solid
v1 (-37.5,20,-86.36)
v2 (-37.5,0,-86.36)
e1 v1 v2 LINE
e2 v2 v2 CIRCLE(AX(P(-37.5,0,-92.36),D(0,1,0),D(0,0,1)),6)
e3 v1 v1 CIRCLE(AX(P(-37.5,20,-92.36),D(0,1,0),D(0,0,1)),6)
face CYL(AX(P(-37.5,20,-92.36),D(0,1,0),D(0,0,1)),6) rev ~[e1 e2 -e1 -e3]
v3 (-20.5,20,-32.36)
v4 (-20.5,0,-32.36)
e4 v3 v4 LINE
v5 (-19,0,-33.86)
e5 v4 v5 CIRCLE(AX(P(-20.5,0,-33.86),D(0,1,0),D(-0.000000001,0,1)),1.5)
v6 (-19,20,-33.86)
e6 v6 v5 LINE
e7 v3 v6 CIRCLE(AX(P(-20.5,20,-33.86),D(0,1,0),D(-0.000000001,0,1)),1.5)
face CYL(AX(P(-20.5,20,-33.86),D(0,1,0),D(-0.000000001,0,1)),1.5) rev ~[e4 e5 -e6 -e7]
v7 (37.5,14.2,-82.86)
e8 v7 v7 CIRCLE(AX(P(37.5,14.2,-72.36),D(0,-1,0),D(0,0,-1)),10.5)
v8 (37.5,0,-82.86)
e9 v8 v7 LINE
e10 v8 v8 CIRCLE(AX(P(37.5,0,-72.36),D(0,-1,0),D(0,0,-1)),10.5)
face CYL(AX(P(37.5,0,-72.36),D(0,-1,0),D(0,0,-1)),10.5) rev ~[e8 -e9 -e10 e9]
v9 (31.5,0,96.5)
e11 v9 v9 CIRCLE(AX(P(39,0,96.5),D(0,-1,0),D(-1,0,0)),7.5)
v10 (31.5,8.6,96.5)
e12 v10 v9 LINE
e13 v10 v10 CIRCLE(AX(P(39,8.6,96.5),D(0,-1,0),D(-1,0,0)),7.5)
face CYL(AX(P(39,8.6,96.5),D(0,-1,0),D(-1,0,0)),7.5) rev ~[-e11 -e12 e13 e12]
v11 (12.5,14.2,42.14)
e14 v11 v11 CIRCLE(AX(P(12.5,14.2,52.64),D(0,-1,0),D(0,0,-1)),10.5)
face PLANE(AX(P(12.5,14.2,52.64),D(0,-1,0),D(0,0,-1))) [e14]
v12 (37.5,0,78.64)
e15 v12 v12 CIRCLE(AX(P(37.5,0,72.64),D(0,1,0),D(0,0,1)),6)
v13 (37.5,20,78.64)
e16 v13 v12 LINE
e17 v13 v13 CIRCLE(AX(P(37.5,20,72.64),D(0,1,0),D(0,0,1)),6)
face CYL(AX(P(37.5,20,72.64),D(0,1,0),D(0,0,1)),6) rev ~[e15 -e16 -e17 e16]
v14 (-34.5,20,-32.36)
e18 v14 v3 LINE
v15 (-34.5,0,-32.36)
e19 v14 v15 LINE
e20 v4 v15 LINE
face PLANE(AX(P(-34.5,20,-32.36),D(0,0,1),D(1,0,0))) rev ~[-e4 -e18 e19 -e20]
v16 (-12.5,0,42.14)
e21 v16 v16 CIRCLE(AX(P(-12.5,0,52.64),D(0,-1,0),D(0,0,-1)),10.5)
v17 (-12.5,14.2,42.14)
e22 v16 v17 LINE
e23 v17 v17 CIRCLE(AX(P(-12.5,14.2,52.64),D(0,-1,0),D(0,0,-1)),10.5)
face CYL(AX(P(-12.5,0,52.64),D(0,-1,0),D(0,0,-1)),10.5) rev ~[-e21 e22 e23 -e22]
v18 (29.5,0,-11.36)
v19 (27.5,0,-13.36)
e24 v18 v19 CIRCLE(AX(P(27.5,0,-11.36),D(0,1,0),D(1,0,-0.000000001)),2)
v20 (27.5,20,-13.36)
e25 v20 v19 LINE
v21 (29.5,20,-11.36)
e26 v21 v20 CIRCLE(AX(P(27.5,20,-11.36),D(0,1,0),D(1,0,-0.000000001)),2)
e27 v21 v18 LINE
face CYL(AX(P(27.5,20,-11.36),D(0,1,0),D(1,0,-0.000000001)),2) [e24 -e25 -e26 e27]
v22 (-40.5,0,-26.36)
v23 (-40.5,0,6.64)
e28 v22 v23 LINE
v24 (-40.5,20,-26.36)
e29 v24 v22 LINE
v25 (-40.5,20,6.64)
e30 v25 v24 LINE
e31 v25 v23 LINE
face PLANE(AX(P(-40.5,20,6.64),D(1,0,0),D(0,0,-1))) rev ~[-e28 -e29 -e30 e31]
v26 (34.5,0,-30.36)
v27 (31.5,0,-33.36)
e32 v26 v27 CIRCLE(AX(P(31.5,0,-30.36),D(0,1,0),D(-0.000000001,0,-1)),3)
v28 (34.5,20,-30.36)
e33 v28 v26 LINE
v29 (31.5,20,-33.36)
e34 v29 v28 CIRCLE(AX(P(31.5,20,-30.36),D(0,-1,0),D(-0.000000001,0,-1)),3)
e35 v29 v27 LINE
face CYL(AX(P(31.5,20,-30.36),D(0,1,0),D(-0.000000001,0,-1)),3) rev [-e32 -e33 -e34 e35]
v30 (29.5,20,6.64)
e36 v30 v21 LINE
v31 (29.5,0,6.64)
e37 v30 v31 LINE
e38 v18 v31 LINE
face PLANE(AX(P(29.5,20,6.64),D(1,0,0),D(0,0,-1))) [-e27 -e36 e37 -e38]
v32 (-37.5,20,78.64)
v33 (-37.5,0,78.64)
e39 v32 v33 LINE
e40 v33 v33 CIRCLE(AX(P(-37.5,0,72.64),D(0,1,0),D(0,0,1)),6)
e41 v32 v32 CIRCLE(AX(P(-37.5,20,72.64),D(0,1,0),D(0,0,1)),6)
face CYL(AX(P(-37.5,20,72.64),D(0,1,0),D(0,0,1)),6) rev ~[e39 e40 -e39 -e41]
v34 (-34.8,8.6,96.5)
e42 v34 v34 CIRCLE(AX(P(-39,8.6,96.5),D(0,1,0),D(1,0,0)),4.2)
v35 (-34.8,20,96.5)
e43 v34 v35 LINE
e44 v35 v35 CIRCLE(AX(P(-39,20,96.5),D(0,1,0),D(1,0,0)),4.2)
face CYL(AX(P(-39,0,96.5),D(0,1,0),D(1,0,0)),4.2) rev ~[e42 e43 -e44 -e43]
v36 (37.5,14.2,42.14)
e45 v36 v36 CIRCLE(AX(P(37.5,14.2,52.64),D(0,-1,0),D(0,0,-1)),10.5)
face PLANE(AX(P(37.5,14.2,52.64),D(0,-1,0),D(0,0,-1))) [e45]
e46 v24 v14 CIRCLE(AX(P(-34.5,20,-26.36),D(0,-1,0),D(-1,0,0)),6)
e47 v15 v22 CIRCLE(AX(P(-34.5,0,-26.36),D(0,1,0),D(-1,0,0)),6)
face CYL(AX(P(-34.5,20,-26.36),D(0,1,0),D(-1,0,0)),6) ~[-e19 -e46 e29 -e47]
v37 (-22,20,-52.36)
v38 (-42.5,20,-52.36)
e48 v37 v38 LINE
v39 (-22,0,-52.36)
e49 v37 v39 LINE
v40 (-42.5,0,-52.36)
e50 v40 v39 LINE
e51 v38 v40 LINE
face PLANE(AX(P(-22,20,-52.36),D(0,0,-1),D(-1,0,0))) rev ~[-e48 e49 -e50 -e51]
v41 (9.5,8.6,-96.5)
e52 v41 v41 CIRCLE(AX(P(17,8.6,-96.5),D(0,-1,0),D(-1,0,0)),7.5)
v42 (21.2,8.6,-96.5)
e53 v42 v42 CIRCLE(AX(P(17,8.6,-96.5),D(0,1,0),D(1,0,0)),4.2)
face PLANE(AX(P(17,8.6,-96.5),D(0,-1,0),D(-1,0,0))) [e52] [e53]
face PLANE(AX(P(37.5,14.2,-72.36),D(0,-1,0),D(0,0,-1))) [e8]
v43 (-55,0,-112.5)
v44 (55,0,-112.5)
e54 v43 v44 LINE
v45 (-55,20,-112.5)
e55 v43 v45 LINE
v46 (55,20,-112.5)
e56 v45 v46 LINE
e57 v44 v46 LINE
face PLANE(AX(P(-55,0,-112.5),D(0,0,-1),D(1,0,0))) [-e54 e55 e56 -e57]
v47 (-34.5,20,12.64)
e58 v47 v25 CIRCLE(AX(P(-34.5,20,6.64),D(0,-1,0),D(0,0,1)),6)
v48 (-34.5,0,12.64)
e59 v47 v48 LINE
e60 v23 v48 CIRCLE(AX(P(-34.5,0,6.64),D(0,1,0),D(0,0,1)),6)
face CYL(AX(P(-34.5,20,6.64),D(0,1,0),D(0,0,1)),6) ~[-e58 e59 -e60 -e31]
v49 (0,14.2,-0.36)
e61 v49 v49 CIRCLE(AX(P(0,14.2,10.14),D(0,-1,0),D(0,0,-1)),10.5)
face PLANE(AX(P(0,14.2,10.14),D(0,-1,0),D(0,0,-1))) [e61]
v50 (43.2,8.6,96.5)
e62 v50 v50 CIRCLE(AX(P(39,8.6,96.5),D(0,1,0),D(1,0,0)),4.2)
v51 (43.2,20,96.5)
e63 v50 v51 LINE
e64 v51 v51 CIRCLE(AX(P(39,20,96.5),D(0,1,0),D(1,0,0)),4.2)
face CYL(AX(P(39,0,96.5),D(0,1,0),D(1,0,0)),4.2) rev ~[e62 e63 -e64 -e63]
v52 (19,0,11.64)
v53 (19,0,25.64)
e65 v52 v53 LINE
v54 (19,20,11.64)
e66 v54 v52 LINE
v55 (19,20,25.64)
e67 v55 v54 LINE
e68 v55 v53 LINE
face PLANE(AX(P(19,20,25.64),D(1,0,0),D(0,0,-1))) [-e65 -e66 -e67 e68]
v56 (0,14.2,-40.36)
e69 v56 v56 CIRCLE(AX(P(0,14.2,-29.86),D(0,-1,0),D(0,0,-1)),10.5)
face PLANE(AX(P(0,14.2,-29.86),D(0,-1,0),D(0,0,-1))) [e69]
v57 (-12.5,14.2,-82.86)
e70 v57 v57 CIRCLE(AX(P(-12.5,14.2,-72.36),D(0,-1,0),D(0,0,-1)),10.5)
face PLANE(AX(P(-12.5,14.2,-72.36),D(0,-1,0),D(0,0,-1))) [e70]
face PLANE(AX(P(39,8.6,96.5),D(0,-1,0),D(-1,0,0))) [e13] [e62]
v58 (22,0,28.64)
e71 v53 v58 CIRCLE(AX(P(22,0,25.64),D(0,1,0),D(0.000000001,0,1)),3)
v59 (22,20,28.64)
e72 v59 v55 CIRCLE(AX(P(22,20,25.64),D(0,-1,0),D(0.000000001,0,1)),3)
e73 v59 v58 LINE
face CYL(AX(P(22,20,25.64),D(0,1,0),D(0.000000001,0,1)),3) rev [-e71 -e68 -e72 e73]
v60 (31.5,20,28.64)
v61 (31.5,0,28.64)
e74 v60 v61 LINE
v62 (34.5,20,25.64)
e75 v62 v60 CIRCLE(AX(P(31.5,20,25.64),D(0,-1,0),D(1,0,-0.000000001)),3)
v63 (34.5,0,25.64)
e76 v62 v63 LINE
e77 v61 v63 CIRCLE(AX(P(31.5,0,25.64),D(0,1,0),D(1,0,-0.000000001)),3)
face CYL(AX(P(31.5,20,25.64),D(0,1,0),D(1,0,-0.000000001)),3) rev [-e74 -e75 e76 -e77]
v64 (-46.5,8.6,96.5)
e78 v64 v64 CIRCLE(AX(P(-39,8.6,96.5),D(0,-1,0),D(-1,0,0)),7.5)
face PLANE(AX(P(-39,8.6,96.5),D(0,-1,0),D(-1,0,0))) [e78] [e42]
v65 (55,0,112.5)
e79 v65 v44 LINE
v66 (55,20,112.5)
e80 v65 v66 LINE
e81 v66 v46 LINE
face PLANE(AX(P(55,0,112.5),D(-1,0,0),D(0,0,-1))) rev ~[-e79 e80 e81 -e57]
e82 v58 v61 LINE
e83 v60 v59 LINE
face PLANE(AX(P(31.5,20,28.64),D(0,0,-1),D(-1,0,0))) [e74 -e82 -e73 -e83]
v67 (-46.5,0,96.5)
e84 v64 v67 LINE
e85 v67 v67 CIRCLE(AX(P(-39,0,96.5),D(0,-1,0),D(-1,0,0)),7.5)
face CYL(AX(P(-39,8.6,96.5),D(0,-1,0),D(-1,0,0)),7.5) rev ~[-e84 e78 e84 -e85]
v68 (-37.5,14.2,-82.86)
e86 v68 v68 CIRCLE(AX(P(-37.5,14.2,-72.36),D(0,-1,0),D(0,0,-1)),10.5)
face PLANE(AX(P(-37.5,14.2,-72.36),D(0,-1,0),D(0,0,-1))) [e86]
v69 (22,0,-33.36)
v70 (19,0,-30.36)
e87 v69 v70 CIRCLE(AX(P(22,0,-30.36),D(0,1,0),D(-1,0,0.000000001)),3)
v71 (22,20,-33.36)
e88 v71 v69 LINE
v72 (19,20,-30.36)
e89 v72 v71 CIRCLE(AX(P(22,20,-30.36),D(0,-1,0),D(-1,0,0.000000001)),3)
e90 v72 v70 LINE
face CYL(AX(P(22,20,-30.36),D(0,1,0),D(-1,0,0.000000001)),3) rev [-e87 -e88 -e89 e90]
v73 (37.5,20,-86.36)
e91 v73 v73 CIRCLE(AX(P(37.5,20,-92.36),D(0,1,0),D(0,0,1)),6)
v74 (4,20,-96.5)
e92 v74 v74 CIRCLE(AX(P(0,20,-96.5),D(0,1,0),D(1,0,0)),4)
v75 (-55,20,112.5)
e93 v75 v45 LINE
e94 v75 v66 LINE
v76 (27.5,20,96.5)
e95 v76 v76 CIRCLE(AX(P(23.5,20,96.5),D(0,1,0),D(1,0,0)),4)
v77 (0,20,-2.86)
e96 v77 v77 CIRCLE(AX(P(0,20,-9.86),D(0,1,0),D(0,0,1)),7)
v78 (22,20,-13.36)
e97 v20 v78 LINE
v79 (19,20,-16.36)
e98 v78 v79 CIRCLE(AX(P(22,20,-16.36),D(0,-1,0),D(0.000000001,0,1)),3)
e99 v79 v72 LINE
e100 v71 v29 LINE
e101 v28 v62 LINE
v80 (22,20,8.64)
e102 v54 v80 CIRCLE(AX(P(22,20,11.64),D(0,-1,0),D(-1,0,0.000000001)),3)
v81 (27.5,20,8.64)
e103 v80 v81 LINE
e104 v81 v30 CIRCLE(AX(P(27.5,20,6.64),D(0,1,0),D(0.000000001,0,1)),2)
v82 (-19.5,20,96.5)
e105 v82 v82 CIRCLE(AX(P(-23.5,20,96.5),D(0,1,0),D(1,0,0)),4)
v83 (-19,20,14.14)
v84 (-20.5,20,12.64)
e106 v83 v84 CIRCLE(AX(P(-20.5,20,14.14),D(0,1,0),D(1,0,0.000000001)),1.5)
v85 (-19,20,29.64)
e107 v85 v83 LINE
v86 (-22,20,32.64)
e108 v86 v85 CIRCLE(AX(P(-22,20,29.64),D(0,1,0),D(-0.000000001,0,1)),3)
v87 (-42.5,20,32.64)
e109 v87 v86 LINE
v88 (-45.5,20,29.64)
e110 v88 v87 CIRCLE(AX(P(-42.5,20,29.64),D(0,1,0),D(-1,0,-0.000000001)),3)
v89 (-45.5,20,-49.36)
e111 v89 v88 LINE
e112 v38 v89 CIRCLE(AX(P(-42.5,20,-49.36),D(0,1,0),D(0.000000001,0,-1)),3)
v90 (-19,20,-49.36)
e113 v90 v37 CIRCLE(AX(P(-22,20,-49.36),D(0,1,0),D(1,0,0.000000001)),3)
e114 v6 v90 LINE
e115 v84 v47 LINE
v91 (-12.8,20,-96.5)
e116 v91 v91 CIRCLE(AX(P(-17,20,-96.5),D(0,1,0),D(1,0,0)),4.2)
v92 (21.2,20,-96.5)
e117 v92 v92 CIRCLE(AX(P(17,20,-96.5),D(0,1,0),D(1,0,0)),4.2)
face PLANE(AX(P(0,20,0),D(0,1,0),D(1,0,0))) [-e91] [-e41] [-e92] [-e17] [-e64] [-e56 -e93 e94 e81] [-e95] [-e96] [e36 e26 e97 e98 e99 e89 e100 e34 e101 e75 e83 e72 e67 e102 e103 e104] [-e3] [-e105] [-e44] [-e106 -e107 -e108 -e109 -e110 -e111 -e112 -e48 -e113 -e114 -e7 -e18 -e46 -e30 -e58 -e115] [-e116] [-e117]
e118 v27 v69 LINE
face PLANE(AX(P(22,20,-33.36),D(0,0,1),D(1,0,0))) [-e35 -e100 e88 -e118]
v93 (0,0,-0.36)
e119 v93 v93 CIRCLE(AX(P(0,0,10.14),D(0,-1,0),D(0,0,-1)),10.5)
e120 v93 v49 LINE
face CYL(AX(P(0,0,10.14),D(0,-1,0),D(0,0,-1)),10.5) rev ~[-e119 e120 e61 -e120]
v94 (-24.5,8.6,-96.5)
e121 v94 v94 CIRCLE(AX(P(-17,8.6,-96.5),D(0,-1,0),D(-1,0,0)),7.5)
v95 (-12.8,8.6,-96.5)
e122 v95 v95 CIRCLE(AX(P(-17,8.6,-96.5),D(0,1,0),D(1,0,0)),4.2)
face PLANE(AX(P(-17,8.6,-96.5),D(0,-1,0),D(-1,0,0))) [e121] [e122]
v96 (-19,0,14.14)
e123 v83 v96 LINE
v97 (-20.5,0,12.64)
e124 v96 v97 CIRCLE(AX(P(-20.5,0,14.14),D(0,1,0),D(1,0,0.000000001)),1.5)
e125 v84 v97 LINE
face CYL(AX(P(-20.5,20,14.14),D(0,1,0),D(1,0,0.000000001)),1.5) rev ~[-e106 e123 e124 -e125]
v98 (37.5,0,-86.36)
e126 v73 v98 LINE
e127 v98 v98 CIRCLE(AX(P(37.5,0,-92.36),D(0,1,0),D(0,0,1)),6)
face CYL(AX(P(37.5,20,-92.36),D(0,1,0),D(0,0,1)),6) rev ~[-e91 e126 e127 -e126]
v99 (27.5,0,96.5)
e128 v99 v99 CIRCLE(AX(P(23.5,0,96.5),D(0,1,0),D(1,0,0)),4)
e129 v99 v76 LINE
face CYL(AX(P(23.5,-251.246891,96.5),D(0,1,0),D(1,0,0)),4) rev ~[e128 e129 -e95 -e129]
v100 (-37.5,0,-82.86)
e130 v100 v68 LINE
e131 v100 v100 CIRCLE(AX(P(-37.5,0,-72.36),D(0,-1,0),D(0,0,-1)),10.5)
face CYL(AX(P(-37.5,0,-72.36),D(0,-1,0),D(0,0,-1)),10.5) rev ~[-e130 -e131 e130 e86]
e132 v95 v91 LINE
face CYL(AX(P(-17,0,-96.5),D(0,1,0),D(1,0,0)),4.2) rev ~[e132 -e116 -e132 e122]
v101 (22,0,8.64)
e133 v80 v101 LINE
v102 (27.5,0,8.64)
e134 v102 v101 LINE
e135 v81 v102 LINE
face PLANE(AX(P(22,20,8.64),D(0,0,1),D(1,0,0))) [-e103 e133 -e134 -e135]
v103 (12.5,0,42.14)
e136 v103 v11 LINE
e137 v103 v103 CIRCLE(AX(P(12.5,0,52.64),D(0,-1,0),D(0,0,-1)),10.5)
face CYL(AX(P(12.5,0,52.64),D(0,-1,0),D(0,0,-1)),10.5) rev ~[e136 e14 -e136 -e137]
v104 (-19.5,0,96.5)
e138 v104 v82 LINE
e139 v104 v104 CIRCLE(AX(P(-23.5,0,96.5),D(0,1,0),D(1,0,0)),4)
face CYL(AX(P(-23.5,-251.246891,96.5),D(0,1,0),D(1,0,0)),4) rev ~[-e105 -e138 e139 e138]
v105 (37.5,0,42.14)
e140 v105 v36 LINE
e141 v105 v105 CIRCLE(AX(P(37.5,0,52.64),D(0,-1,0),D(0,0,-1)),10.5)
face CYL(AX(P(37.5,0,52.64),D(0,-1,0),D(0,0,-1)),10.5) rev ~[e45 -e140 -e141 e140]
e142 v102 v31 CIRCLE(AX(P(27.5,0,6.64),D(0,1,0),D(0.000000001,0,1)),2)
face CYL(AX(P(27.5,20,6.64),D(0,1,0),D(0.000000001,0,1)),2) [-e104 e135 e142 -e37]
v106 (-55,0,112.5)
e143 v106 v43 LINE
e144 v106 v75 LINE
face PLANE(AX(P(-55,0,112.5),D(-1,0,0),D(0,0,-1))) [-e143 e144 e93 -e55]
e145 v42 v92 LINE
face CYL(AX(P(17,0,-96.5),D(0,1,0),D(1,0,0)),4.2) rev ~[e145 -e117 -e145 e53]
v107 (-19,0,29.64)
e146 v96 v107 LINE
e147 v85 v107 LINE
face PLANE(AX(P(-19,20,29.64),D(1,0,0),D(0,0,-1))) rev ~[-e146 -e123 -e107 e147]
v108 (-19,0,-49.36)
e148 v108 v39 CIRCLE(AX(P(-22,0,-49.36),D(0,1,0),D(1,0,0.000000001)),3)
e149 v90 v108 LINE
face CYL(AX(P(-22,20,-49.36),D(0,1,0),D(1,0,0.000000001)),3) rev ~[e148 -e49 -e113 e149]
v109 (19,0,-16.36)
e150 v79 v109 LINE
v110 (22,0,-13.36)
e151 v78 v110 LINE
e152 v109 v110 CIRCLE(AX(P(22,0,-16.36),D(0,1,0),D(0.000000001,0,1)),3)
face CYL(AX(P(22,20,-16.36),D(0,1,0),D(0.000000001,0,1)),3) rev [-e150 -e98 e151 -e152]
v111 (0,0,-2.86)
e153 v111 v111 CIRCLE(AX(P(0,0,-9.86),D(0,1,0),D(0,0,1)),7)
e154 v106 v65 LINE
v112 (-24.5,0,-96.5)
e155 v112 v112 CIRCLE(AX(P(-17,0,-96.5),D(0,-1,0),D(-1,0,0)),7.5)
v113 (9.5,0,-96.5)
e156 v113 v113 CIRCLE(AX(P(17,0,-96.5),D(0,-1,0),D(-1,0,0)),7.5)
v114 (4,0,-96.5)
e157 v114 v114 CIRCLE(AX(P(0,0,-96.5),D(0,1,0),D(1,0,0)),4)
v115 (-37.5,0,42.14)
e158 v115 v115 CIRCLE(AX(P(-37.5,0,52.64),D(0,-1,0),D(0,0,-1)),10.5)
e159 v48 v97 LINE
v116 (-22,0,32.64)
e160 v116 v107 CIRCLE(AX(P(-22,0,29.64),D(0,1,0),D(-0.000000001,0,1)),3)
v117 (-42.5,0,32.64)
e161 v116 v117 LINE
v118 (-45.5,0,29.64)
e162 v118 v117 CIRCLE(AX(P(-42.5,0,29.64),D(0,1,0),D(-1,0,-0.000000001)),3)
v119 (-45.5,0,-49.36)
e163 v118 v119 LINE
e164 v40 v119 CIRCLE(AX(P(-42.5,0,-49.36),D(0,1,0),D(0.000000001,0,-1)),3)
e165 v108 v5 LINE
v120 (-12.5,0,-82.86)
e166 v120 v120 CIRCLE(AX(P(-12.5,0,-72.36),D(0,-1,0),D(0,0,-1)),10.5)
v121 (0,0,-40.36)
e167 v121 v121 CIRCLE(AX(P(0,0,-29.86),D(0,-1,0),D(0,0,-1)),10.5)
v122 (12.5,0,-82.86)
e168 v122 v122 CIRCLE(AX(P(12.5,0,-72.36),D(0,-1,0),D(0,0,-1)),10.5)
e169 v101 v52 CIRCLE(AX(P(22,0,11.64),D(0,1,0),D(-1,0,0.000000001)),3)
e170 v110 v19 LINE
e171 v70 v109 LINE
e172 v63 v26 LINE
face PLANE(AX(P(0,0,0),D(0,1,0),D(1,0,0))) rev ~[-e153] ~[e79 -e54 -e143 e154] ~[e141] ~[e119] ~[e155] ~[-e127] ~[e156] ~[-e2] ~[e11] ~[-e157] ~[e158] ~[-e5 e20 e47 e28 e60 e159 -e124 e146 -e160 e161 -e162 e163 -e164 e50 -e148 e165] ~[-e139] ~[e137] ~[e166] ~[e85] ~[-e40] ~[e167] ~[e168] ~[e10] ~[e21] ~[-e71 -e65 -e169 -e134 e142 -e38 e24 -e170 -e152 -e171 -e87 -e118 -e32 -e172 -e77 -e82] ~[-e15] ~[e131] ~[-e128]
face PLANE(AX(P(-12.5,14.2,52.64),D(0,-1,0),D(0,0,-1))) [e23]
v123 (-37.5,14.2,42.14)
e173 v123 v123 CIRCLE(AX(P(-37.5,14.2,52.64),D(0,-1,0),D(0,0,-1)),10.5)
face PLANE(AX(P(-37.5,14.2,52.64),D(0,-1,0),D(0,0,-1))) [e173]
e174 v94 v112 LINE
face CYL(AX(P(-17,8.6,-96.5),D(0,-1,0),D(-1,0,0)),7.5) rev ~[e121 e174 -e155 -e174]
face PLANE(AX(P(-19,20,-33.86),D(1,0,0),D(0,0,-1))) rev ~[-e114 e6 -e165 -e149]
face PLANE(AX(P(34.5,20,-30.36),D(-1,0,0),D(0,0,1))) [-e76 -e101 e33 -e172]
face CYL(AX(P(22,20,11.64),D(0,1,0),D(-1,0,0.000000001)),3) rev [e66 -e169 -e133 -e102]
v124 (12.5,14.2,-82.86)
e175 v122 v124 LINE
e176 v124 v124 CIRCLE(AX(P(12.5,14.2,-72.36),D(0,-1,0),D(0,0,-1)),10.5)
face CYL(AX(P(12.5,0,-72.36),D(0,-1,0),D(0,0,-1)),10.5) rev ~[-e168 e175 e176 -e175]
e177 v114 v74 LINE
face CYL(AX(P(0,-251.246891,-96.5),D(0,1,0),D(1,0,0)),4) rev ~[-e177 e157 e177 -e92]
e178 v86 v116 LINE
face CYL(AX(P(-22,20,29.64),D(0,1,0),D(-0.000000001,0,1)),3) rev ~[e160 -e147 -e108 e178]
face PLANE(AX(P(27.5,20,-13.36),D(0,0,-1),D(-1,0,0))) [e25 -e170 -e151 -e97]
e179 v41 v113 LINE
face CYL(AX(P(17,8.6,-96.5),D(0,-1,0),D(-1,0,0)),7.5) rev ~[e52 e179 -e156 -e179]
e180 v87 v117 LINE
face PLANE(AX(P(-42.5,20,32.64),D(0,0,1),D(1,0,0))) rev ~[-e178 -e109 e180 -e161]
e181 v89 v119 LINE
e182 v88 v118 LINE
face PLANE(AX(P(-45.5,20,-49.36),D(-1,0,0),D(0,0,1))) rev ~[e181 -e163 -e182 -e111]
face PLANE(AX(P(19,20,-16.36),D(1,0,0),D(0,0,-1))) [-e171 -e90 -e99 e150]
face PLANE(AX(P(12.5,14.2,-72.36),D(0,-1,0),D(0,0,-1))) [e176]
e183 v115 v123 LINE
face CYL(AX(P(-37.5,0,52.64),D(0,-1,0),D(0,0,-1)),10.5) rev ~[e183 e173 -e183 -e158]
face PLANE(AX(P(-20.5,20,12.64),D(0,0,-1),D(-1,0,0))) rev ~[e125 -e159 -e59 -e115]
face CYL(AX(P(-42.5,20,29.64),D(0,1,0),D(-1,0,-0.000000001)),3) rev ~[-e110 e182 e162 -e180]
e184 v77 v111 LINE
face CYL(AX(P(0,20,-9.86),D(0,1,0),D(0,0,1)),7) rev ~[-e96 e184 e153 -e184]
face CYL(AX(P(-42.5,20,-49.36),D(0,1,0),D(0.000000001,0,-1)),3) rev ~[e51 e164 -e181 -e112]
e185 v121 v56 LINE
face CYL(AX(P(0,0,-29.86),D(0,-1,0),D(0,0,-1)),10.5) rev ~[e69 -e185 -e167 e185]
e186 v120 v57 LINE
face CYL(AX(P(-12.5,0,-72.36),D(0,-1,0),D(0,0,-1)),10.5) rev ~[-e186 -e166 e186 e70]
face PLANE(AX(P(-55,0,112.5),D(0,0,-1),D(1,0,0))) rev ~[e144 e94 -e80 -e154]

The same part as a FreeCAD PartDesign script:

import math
import FreeCAD as App
import Part
import Sketcher
from FreeCAD import Vector


def add_polygon(sketch, points):
    """Adds a closed chain of lines whose ends are joined by coincident constraints."""
    first, n = sketch.GeometryCount, len(points)
    for a, b in zip(points, points[1:] + points[:1]):
        sketch.addGeometry(Part.LineSegment(App.Vector(*a, 0), App.Vector(*b, 0)), False)
    for i in range(n):
        sketch.addConstraint(Sketcher.Constraint("Coincident", first + i, 2, first + (i + 1) % n, 1))

doc = App.newDocument("Part")
body = doc.addObject("PartDesign::Body", "Body")

sketch1 = body.newObject("Sketcher::SketchObject", "Sketch")
sketch1.AttachmentSupport = (doc.getObject("XZ_Plane"), [""])
sketch1.MapMode = "FlatFace"
add_polygon(sketch1, [(-55, -112.5), (-55, 112.5), (55, 112.5), (55, -112.5)])
sketch1.addConstraint(Sketcher.Constraint("Vertical", 0))
sketch1.addConstraint(Sketcher.Constraint("Horizontal", 1))
sketch1.addConstraint(Sketcher.Constraint("Vertical", 2))
sketch1.addConstraint(Sketcher.Constraint("Horizontal", 3))
sketch1.addConstraint(Sketcher.Constraint("Symmetric", 0, 2, 2, 2, -1, 1))
sketch1.addConstraint(Sketcher.Constraint("DistanceX", 1, 1, 1, 2, 110.0))
sketch1.addConstraint(Sketcher.Constraint("DistanceY", 0, 1, 0, 2, 225.0))
pad1 = body.newObject("PartDesign::Pad", "Pad")
pad1.Profile = sketch1
pad1.Length = 20
pad1.Reversed = True

sketch2 = body.newObject("Sketcher::SketchObject", "Sketch001")
sketch2.AttachmentSupport = (doc.getObject("XZ_Plane"), [""])
sketch2.MapMode = "FlatFace"
sketch2.AttachmentOffset = App.Placement(Vector(0, 0, -20), App.Rotation())
sketch2.addGeometry(Part.LineSegment(Vector(-42.5, 32.64, 0), Vector(-22, 32.64, 0)), False)
sketch2.addGeometry(Part.ArcOfCircle(Part.Circle(Vector(-22, 29.64, 0), Vector(0, 0, 1), 3), math.radians(0), math.radians(90)), False)
sketch2.addGeometry(Part.LineSegment(Vector(-19, 29.64, 0), Vector(-19, 14.14, 0)), False)
sketch2.addGeometry(Part.ArcOfCircle(Part.Circle(Vector(-20.5, 14.14, 0), Vector(0, 0, 1), 1.5), math.radians(-90), math.radians(0)), False)
sketch2.addGeometry(Part.LineSegment(Vector(-20.5, 12.64, 0), Vector(-34.5, 12.64, 0)), False)
sketch2.addGeometry(Part.ArcOfCircle(Part.Circle(Vector(-34.5, 6.64, 0), Vector(0, 0, 1), 6), math.radians(90), math.radians(180)), False)
sketch2.addGeometry(Part.LineSegment(Vector(-40.5, 6.64, 0), Vector(-40.5, -26.36, 0)), False)
sketch2.addGeometry(Part.ArcOfCircle(Part.Circle(Vector(-34.5, -26.36, 0), Vector(0, 0, 1), 6), math.radians(180), math.radians(270)), False)
sketch2.addGeometry(Part.LineSegment(Vector(-34.5, -32.36, 0), Vector(-20.5, -32.36, 0)), False)
sketch2.addGeometry(Part.ArcOfCircle(Part.Circle(Vector(-20.5, -33.86, 0), Vector(0, 0, 1), 1.5), math.radians(0), math.radians(90)), False)
sketch2.addGeometry(Part.LineSegment(Vector(-19, -33.86, 0), Vector(-19, -49.36, 0)), False)
sketch2.addGeometry(Part.ArcOfCircle(Part.Circle(Vector(-22, -49.36, 0), Vector(0, 0, 1), 3), math.radians(-90), math.radians(0)), False)
sketch2.addGeometry(Part.LineSegment(Vector(-22, -52.36, 0), Vector(-42.5, -52.36, 0)), False)
sketch2.addGeometry(Part.ArcOfCircle(Part.Circle(Vector(-42.5, -49.36, 0), Vector(0, 0, 1), 3), math.radians(180), math.radians(270)), False)
sketch2.addGeometry(Part.LineSegment(Vector(-45.5, -49.36, 0), Vector(-45.5, 29.64, 0)), False)
sketch2.addGeometry(Part.ArcOfCircle(Part.Circle(Vector(-42.5, 29.64, 0), Vector(0, 0, 1), 3), math.radians(90), math.radians(180)), False)
sketch2.addConstraint(Sketcher.Constraint("Tangent", 0, 2, 1, 2))
sketch2.addConstraint(Sketcher.Constraint("Tangent", 1, 1, 2, 1))
sketch2.addConstraint(Sketcher.Constraint("Tangent", 2, 2, 3, 2))
sketch2.addConstraint(Sketcher.Constraint("Tangent", 3, 1, 4, 1))
sketch2.addConstraint(Sketcher.Constraint("Tangent", 4, 2, 5, 1))
sketch2.addConstraint(Sketcher.Constraint("Tangent", 5, 2, 6, 1))
sketch2.addConstraint(Sketcher.Constraint("Tangent", 6, 2, 7, 1))
sketch2.addConstraint(Sketcher.Constraint("Tangent", 7, 2, 8, 1))
sketch2.addConstraint(Sketcher.Constraint("Tangent", 8, 2, 9, 2))
sketch2.addConstraint(Sketcher.Constraint("Tangent", 9, 1, 10, 1))
sketch2.addConstraint(Sketcher.Constraint("Tangent", 10, 2, 11, 2))
sketch2.addConstraint(Sketcher.Constraint("Tangent", 11, 1, 12, 1))
sketch2.addConstraint(Sketcher.Constraint("Tangent", 12, 2, 13, 2))
sketch2.addConstraint(Sketcher.Constraint("Tangent", 13, 1, 14, 1))
sketch2.addConstraint(Sketcher.Constraint("Tangent", 14, 2, 15, 2))
sketch2.addConstraint(Sketcher.Constraint("Tangent", 15, 1, 0, 1))
sketch2.addConstraint(Sketcher.Constraint("Horizontal", 0))
sketch2.addConstraint(Sketcher.Constraint("Vertical", 2))
sketch2.addConstraint(Sketcher.Constraint("Horizontal", 4))
sketch2.addConstraint(Sketcher.Constraint("Vertical", 6))
sketch2.addConstraint(Sketcher.Constraint("Horizontal", 8))
sketch2.addConstraint(Sketcher.Constraint("Vertical", 10))
sketch2.addConstraint(Sketcher.Constraint("Horizontal", 12))
sketch2.addConstraint(Sketcher.Constraint("Vertical", 14))
sketch2.addConstraint(Sketcher.Constraint("Equal", 5, 7))
sketch2.addConstraint(Sketcher.Constraint("Equal", 3, 9))
sketch2.addConstraint(Sketcher.Constraint("Equal", 1, 11))
sketch2.addConstraint(Sketcher.Constraint("Equal", 11, 13))
sketch2.addConstraint(Sketcher.Constraint("Equal", 13, 15))
sketch2.addConstraint(Sketcher.Constraint("Vertical", 3, 3, 9, 3))
sketch2.addConstraint(Sketcher.Constraint("Equal", 2, 10))
sketch2.addConstraint(Sketcher.Constraint("Radius", 1, 3.0))
sketch2.addConstraint(Sketcher.Constraint("Radius", 5, 6.0))
sketch2.addConstraint(Sketcher.Constraint("Radius", 3, 1.5))
sketch2.addConstraint(Sketcher.Constraint("DistanceX", 4, 2, 4, 1, 14.0))
sketch2.addConstraint(Sketcher.Constraint("DistanceY", 6, 2, 6, 1, 33.0))
sketch2.addConstraint(Sketcher.Constraint("DistanceY", 14, 1, 14, 2, 79.0))
sketch2.addConstraint(Sketcher.Constraint("DistanceX", 0, 1, 0, 2, 20.5))
sketch2.addConstraint(Sketcher.Constraint("DistanceX", 1, 3, -1, 1, 22.0))
sketch2.addConstraint(Sketcher.Constraint("DistanceY", -1, 1, 1, 3, 29.64))
pocket1 = body.newObject("PartDesign::Pocket", "Pocket")
pocket1.Profile = sketch2
pocket1.Type = "UpToFirst"
pocket1.Reversed = True

sketch3 = body.newObject("Sketcher::SketchObject", "Sketch002")
sketch3.AttachmentSupport = (doc.getObject("XZ_Plane"), [""])
sketch3.MapMode = "FlatFace"
sketch3.AttachmentOffset = App.Placement(Vector(0, 0, -20), App.Rotation())
sketch3.addGeometry(Part.LineSegment(Vector(27.5, 8.64, 0), Vector(22, 8.64, 0)), False)
sketch3.addGeometry(Part.ArcOfCircle(Part.Circle(Vector(22, 11.64, 0), Vector(0, 0, 1), 3), math.radians(180), math.radians(270)), False)
sketch3.addGeometry(Part.LineSegment(Vector(19, 11.64, 0), Vector(19, 25.64, 0)), False)
sketch3.addGeometry(Part.ArcOfCircle(Part.Circle(Vector(22, 25.64, 0), Vector(0, 0, 1), 3), math.radians(90), math.radians(180)), False)
sketch3.addGeometry(Part.LineSegment(Vector(22, 28.64, 0), Vector(31.5, 28.64, 0)), False)
sketch3.addGeometry(Part.ArcOfCircle(Part.Circle(Vector(31.5, 25.64, 0), Vector(0, 0, 1), 3), math.radians(0), math.radians(90)), False)
sketch3.addGeometry(Part.LineSegment(Vector(34.5, 25.64, 0), Vector(34.5, -30.36, 0)), False)
sketch3.addGeometry(Part.ArcOfCircle(Part.Circle(Vector(31.5, -30.36, 0), Vector(0, 0, 1), 3), math.radians(-90), math.radians(0)), False)
sketch3.addGeometry(Part.LineSegment(Vector(31.5, -33.36, 0), Vector(22, -33.36, 0)), False)
sketch3.addGeometry(Part.ArcOfCircle(Part.Circle(Vector(22, -30.36, 0), Vector(0, 0, 1), 3), math.radians(180), math.radians(270)), False)
sketch3.addGeometry(Part.LineSegment(Vector(19, -30.36, 0), Vector(19, -16.36, 0)), False)
sketch3.addGeometry(Part.ArcOfCircle(Part.Circle(Vector(22, -16.36, 0), Vector(0, 0, 1), 3), math.radians(90), math.radians(180)), False)
sketch3.addGeometry(Part.LineSegment(Vector(22, -13.36, 0), Vector(27.5, -13.36, 0)), False)
sketch3.addGeometry(Part.ArcOfCircle(Part.Circle(Vector(27.5, -11.36, 0), Vector(0, 0, 1), 2), math.radians(-90), math.radians(0)), False)
sketch3.addGeometry(Part.LineSegment(Vector(29.5, -11.36, 0), Vector(29.5, 6.64, 0)), False)
sketch3.addGeometry(Part.ArcOfCircle(Part.Circle(Vector(27.5, 6.64, 0), Vector(0, 0, 1), 2), math.radians(0), math.radians(90)), False)
sketch3.addConstraint(Sketcher.Constraint("Tangent", 0, 2, 1, 2))
sketch3.addConstraint(Sketcher.Constraint("Tangent", 1, 1, 2, 1))
sketch3.addConstraint(Sketcher.Constraint("Tangent", 2, 2, 3, 2))
sketch3.addConstraint(Sketcher.Constraint("Tangent", 3, 1, 4, 1))
sketch3.addConstraint(Sketcher.Constraint("Tangent", 4, 2, 5, 2))
sketch3.addConstraint(Sketcher.Constraint("Tangent", 5, 1, 6, 1))
sketch3.addConstraint(Sketcher.Constraint("Tangent", 6, 2, 7, 2))
sketch3.addConstraint(Sketcher.Constraint("Tangent", 7, 1, 8, 1))
sketch3.addConstraint(Sketcher.Constraint("Tangent", 8, 2, 9, 2))
sketch3.addConstraint(Sketcher.Constraint("Tangent", 9, 1, 10, 1))
sketch3.addConstraint(Sketcher.Constraint("Tangent", 10, 2, 11, 2))
sketch3.addConstraint(Sketcher.Constraint("Tangent", 11, 1, 12, 1))
sketch3.addConstraint(Sketcher.Constraint("Tangent", 12, 2, 13, 1))
sketch3.addConstraint(Sketcher.Constraint("Tangent", 13, 2, 14, 1))
sketch3.addConstraint(Sketcher.Constraint("Tangent", 14, 2, 15, 1))
sketch3.addConstraint(Sketcher.Constraint("Tangent", 15, 2, 0, 1))
sketch3.addConstraint(Sketcher.Constraint("Horizontal", 0))
sketch3.addConstraint(Sketcher.Constraint("Vertical", 2))
sketch3.addConstraint(Sketcher.Constraint("Horizontal", 4))
sketch3.addConstraint(Sketcher.Constraint("Vertical", 6))
sketch3.addConstraint(Sketcher.Constraint("Horizontal", 8))
sketch3.addConstraint(Sketcher.Constraint("Vertical", 10))
sketch3.addConstraint(Sketcher.Constraint("Horizontal", 12))
sketch3.addConstraint(Sketcher.Constraint("Vertical", 14))
sketch3.addConstraint(Sketcher.Constraint("Equal", 1, 3))
sketch3.addConstraint(Sketcher.Constraint("Equal", 3, 5))
sketch3.addConstraint(Sketcher.Constraint("Equal", 5, 7))
sketch3.addConstraint(Sketcher.Constraint("Equal", 7, 9))
sketch3.addConstraint(Sketcher.Constraint("Equal", 9, 11))
sketch3.addConstraint(Sketcher.Constraint("Equal", 13, 15))
sketch3.addConstraint(Sketcher.Constraint("Vertical", 3, 3, 9, 3))
sketch3.addConstraint(Sketcher.Constraint("Equal", 2, 10))
sketch3.addConstraint(Sketcher.Constraint("Radius", 1, 3.0))
sketch3.addConstraint(Sketcher.Constraint("Radius", 13, 2.0))
sketch3.addConstraint(Sketcher.Constraint("DistanceY", 2, 1, 2, 2, 14.0))
sketch3.addConstraint(Sketcher.Constraint("DistanceY", 6, 2, 6, 1, 56.0))
sketch3.addConstraint(Sketcher.Constraint("DistanceX", 0, 2, 0, 1, 5.5))
sketch3.addConstraint(Sketcher.Constraint("DistanceX", 4, 1, 4, 2, 9.5))
sketch3.addConstraint(Sketcher.Constraint("DistanceX", -1, 1, 1, 3, 22.0))
sketch3.addConstraint(Sketcher.Constraint("DistanceY", -1, 1, 1, 3, 11.64))
pocket2 = body.newObject("PartDesign::Pocket", "Pocket001")
pocket2.Profile = sketch3
pocket2.Type = "UpToFirst"
pocket2.Reversed = True

sketch4 = body.newObject("Sketcher::SketchObject", "Sketch003")
sketch4.AttachmentSupport = (doc.getObject("XZ_Plane"), [""])
sketch4.MapMode = "FlatFace"
sketch4.addGeometry(Part.Circle(Vector(37.5, 52.64, 0), Vector(0, 0, 1), 10.5), False)
sketch4.addGeometry(Part.Circle(Vector(12.5, 52.64, 0), Vector(0, 0, 1), 10.5), False)
sketch4.addGeometry(Part.Circle(Vector(-12.5, 52.64, 0), Vector(0, 0, 1), 10.5), False)
sketch4.addGeometry(Part.Circle(Vector(-37.5, 52.64, 0), Vector(0, 0, 1), 10.5), False)
sketch4.addGeometry(Part.Circle(Vector(0, 10.14, 0), Vector(0, 0, 1), 10.5), False)
sketch4.addGeometry(Part.Circle(Vector(0, -29.86, 0), Vector(0, 0, 1), 10.5), False)
sketch4.addGeometry(Part.Circle(Vector(37.5, -72.36, 0), Vector(0, 0, 1), 10.5), False)
sketch4.addGeometry(Part.Circle(Vector(12.5, -72.36, 0), Vector(0, 0, 1), 10.5), False)
sketch4.addGeometry(Part.Circle(Vector(-12.5, -72.36, 0), Vector(0, 0, 1), 10.5), False)
sketch4.addGeometry(Part.Circle(Vector(-37.5, -72.36, 0), Vector(0, 0, 1), 10.5), False)
sketch4.addConstraint(Sketcher.Constraint("Equal", 0, 1))
sketch4.addConstraint(Sketcher.Constraint("Equal", 1, 2))
sketch4.addConstraint(Sketcher.Constraint("Equal", 2, 3))
sketch4.addConstraint(Sketcher.Constraint("Equal", 3, 4))
sketch4.addConstraint(Sketcher.Constraint("Equal", 4, 5))
sketch4.addConstraint(Sketcher.Constraint("Equal", 5, 6))
sketch4.addConstraint(Sketcher.Constraint("Equal", 6, 7))
sketch4.addConstraint(Sketcher.Constraint("Equal", 7, 8))
sketch4.addConstraint(Sketcher.Constraint("Equal", 8, 9))
sketch4.addConstraint(Sketcher.Constraint("Symmetric", 1, 3, 2, 3, -2))
sketch4.addConstraint(Sketcher.Constraint("Symmetric", 0, 3, 3, 3, -2))
sketch4.addConstraint(Sketcher.Constraint("Symmetric", 7, 3, 8, 3, -2))
sketch4.addConstraint(Sketcher.Constraint("Symmetric", 6, 3, 9, 3, -2))
sketch4.addConstraint(Sketcher.Constraint("PointOnObject", 4, 3, -2))
sketch4.addConstraint(Sketcher.Constraint("PointOnObject", 5, 3, -2))
sketch4.addConstraint(Sketcher.Constraint("Horizontal", 0, 3, 1, 3))
sketch4.addConstraint(Sketcher.Constraint("Horizontal", 6, 3, 7, 3))
sketch4.addConstraint(Sketcher.Constraint("Vertical", 0, 3, 6, 3))
sketch4.addConstraint(Sketcher.Constraint("Vertical", 1, 3, 7, 3))
sketch4.addConstraint(Sketcher.Constraint("Diameter", 0, 21.0))
sketch4.addConstraint(Sketcher.Constraint("DistanceX", 1, 3, 0, 3, 25.0))
sketch4.addConstraint(Sketcher.Constraint("DistanceX", 2, 3, 1, 3, 25.0))
sketch4.addConstraint(Sketcher.Constraint("DistanceY", 5, 3, 4, 3, 40.0))
sketch4.addConstraint(Sketcher.Constraint("DistanceY", 6, 3, 0, 3, 125.0))
sketch4.addConstraint(Sketcher.Constraint("DistanceY", 4, 3, 1, 3, 42.5))
sketch4.addConstraint(Sketcher.Constraint("DistanceY", -1, 1, 0, 3, 52.64))
pocket3 = body.newObject("PartDesign::Pocket", "Pocket002")
pocket3.Profile = sketch4
pocket3.Length = 14.2

sketch5 = body.newObject("Sketcher::SketchObject", "Sketch004")
sketch5.AttachmentSupport = (doc.getObject("XZ_Plane"), [""])
sketch5.MapMode = "FlatFace"
sketch5.AttachmentOffset = App.Placement(Vector(0, 0, -20), App.Rotation())
sketch5.addGeometry(Part.Circle(Vector(-37.5, -92.36, 0), Vector(0, 0, 1), 6), False)
sketch5.addConstraint(Sketcher.Constraint("Diameter", 0, 12.0))
sketch5.addConstraint(Sketcher.Constraint("DistanceX", 0, 3, -1, 1, 37.5))
sketch5.addConstraint(Sketcher.Constraint("DistanceY", 0, 3, -1, 1, 92.36))
pocket4 = body.newObject("PartDesign::Pocket", "Pocket003")
pocket4.Profile = sketch5
pocket4.Type = "UpToFirst"
pocket4.Reversed = True

sketch6 = body.newObject("Sketcher::SketchObject", "Sketch005")
sketch6.AttachmentSupport = (doc.getObject("XZ_Plane"), [""])
sketch6.MapMode = "FlatFace"
sketch6.AttachmentOffset = App.Placement(Vector(0, 0, -20), App.Rotation())
sketch6.addGeometry(Part.Circle(Vector(37.5, -92.36, 0), Vector(0, 0, 1), 6), False)
sketch6.addConstraint(Sketcher.Constraint("Diameter", 0, 12.0))
sketch6.addConstraint(Sketcher.Constraint("DistanceX", -1, 1, 0, 3, 37.5))
sketch6.addConstraint(Sketcher.Constraint("DistanceY", 0, 3, -1, 1, 92.36))
pocket5 = body.newObject("PartDesign::Pocket", "Pocket004")
pocket5.Profile = sketch6
pocket5.Type = "UpToFirst"
pocket5.Reversed = True

sketch7 = body.newObject("Sketcher::SketchObject", "Sketch006")
sketch7.AttachmentSupport = (doc.getObject("XZ_Plane"), [""])
sketch7.MapMode = "FlatFace"
sketch7.AttachmentOffset = App.Placement(Vector(0, 0, -20), App.Rotation())
sketch7.addGeometry(Part.Circle(Vector(-37.5, 72.64, 0), Vector(0, 0, 1), 6), False)
sketch7.addConstraint(Sketcher.Constraint("Diameter", 0, 12.0))
sketch7.addConstraint(Sketcher.Constraint("DistanceX", 0, 3, -1, 1, 37.5))
sketch7.addConstraint(Sketcher.Constraint("DistanceY", -1, 1, 0, 3, 72.64))
pocket6 = body.newObject("PartDesign::Pocket", "Pocket005")
pocket6.Profile = sketch7
pocket6.Type = "UpToFirst"
pocket6.Reversed = True

sketch8 = body.newObject("Sketcher::SketchObject", "Sketch007")
sketch8.AttachmentSupport = (doc.getObject("XZ_Plane"), [""])
sketch8.MapMode = "FlatFace"
sketch8.AttachmentOffset = App.Placement(Vector(0, 0, -20), App.Rotation())
sketch8.addGeometry(Part.Circle(Vector(37.5, 72.64, 0), Vector(0, 0, 1), 6), False)
sketch8.addConstraint(Sketcher.Constraint("Diameter", 0, 12.0))
sketch8.addConstraint(Sketcher.Constraint("DistanceX", -1, 1, 0, 3, 37.5))
sketch8.addConstraint(Sketcher.Constraint("DistanceY", -1, 1, 0, 3, 72.64))
pocket7 = body.newObject("PartDesign::Pocket", "Pocket006")
pocket7.Profile = sketch8
pocket7.Type = "UpToFirst"
pocket7.Reversed = True

sketch9 = body.newObject("Sketcher::SketchObject", "Sketch008")
sketch9.AttachmentSupport = (doc.getObject("XZ_Plane"), [""])
sketch9.MapMode = "FlatFace"
sketch9.AttachmentOffset = App.Placement(Vector(0, 0, -20), App.Rotation())
sketch9.addGeometry(Part.Circle(Vector(0, -9.86, 0), Vector(0, 0, 1), 7), False)
sketch9.addConstraint(Sketcher.Constraint("PointOnObject", 0, 3, -2))
sketch9.addConstraint(Sketcher.Constraint("Diameter", 0, 14.0))
sketch9.addConstraint(Sketcher.Constraint("DistanceY", 0, 3, -1, 1, 9.86))
pocket8 = body.newObject("PartDesign::Pocket", "Pocket007")
pocket8.Profile = sketch9
pocket8.Type = "UpToFirst"
pocket8.Reversed = True

sketch10 = body.newObject("Sketcher::SketchObject", "Sketch009")
sketch10.AttachmentSupport = (doc.getObject("XZ_Plane"), [""])
sketch10.MapMode = "FlatFace"
sketch10.addGeometry(Part.Circle(Vector(17, -96.5, 0), Vector(0, 0, 1), 4.2), False)
sketch10.addGeometry(Part.Circle(Vector(-17, -96.5, 0), Vector(0, 0, 1), 4.2), False)
sketch10.addGeometry(Part.Circle(Vector(39, 96.5, 0), Vector(0, 0, 1), 4.2), False)
sketch10.addGeometry(Part.Circle(Vector(-39, 96.5, 0), Vector(0, 0, 1), 4.2), False)
sketch10.addConstraint(Sketcher.Constraint("Equal", 0, 1))
sketch10.addConstraint(Sketcher.Constraint("Equal", 1, 2))
sketch10.addConstraint(Sketcher.Constraint("Equal", 2, 3))
sketch10.addConstraint(Sketcher.Constraint("Symmetric", 0, 3, 1, 3, -2))
sketch10.addConstraint(Sketcher.Constraint("Symmetric", 2, 3, 3, 3, -2))
sketch10.addConstraint(Sketcher.Constraint("Diameter", 0, 8.4))
sketch10.addConstraint(Sketcher.Constraint("DistanceX", -1, 1, 0, 3, 17.0))
sketch10.addConstraint(Sketcher.Constraint("DistanceX", -1, 1, 2, 3, 39.0))
sketch10.addConstraint(Sketcher.Constraint("DistanceY", 0, 3, 2, 3, 193.0))
sketch10.addConstraint(Sketcher.Constraint("DistanceY", 0, 3, -1, 1, 96.5))
doc.recompute()
hole = body.newObject("PartDesign::Hole", "Hole")
hole.Profile = sketch10
hole.ThreadType = "None"
hole.Diameter = 8.4
hole.DepthType = "ThroughAll"
hole.HoleCutType = "Counterbore"
hole.HoleCutDiameter = 15
hole.HoleCutDepth = 8.6

sketch11 = body.newObject("Sketcher::SketchObject", "Sketch010")
sketch11.AttachmentSupport = (doc.getObject("XZ_Plane"), [""])
sketch11.MapMode = "FlatFace"
sketch11.addGeometry(Part.Circle(Vector(0, -96.5, 0), Vector(0, 0, 1), 4), False)
sketch11.addGeometry(Part.Circle(Vector(23.5, 96.5, 0), Vector(0, 0, 1), 4), False)
sketch11.addGeometry(Part.Circle(Vector(-23.5, 96.5, 0), Vector(0, 0, 1), 4), False)
sketch11.addConstraint(Sketcher.Constraint("Equal", 0, 1))
sketch11.addConstraint(Sketcher.Constraint("Equal", 1, 2))
sketch11.addConstraint(Sketcher.Constraint("Symmetric", 1, 3, 2, 3, -2))
sketch11.addConstraint(Sketcher.Constraint("PointOnObject", 0, 3, -2))
sketch11.addConstraint(Sketcher.Constraint("Diameter", 0, 8.0))
sketch11.addConstraint(Sketcher.Constraint("DistanceY", 0, 3, 1, 3, 193.0))
sketch11.addConstraint(Sketcher.Constraint("DistanceX", 2, 3, 1, 3, 47.0))
sketch11.addConstraint(Sketcher.Constraint("DistanceY", 0, 3, -1, 1, 96.5))
doc.recompute()
hole2 = body.newObject("PartDesign::Hole", "Hole001")
hole2.Profile = sketch11
hole2.ThreadType = "None"
hole2.Diameter = 8
hole2.DepthType = "ThroughAll"

doc.recompute()
